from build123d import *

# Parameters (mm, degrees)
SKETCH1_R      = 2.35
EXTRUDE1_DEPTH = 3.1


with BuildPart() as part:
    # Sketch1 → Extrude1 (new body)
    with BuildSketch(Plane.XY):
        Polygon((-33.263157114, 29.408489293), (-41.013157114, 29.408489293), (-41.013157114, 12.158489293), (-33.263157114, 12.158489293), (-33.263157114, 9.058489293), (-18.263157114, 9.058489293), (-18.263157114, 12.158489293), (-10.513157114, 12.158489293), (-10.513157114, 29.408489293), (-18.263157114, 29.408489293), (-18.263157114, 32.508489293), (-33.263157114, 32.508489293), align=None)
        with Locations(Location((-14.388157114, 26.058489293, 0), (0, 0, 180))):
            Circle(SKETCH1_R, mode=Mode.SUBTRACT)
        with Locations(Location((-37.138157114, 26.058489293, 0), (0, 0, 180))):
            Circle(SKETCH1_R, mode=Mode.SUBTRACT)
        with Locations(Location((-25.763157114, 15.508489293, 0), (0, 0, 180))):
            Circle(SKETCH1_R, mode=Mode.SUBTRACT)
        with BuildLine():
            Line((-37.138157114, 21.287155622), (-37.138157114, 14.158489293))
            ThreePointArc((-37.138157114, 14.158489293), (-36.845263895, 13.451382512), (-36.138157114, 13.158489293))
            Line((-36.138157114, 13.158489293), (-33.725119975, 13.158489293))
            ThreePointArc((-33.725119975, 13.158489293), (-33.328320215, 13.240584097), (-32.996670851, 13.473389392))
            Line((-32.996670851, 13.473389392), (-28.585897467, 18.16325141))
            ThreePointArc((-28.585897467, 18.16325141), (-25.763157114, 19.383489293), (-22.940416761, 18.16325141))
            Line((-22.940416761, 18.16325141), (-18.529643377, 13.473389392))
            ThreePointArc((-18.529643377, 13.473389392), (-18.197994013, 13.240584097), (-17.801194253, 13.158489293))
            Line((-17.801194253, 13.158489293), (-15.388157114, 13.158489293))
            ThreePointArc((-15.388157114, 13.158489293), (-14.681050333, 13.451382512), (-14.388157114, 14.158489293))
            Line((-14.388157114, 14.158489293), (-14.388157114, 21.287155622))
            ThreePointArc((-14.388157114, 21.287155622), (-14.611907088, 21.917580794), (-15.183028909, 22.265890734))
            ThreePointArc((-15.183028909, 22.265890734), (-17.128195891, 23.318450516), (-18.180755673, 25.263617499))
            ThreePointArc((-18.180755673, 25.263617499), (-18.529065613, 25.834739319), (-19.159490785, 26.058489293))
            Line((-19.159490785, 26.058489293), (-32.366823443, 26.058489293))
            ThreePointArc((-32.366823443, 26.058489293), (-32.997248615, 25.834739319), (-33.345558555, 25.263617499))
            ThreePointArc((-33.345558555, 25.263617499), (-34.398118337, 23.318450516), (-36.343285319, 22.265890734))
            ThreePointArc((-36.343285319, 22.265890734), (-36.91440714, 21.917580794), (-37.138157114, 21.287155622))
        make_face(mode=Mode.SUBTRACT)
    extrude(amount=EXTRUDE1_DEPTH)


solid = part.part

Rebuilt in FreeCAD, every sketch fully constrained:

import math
import FreeCAD as App
import Part
import Sketcher


def add_polygon(sketch, points):
    """Adds a closed chain of lines whose ends are joined by coincident constraints."""
    first, n = sketch.GeometryCount, len(points)
    for a, b in zip(points, points[1:] + points[:1]):
        sketch.addGeometry(Part.LineSegment(App.Vector(*a, 0), App.Vector(*b, 0)), False)
    for i in range(n):
        sketch.addConstraint(Sketcher.Constraint("Coincident", first + i, 2, first + (i + 1) % n, 1))

doc = App.newDocument("Part")
body = doc.addObject("PartDesign::Body", "Body")

# Sketch on XY plane
sketch1 = body.newObject("Sketcher::SketchObject", "Sketch")
sketch1.AttachmentSupport = (doc.getObject("XY_Plane"), [""])
sketch1.MapMode = "FlatFace"
add_polygon(sketch1, [(-33.263157, 29.408489), (-41.013157, 29.408489), (-41.013157, 12.158489), (-33.263157, 12.158489), (-33.263157, 9.058489), (-18.263157, 9.058489), (-18.263157, 12.158489), (-10.513157, 12.158489), (-10.513157, 29.408489), (-18.263157, 29.408489), (-18.263157, 32.508489), (-33.263157, 32.508489)])  # lines 0-11
sketch1.addGeometry(Part.Circle(App.Vector(-25.763157, 15.508489, 0), App.Vector(0, 0, 1), 2.35), False)  # 12
sketch1.addGeometry(Part.LineSegment(App.Vector(-37.138157, 14.158489, 0), App.Vector(-37.138157, 21.287156, 0)), False)  # 13
sketch1.addGeometry(Part.ArcOfCircle(Part.Circle(App.Vector(-36.138157, 21.287156, 0), App.Vector(0, 0, 1), 1), math.radians(101.837004), math.radians(180)), False)  # 14
sketch1.addGeometry(Part.ArcOfCircle(Part.Circle(App.Vector(-37.138157, 26.058489, 0), App.Vector(0, 0, 1), 3.875), math.radians(-78.162996), math.radians(-11.837004)), False)  # 15
sketch1.addGeometry(Part.ArcOfCircle(Part.Circle(App.Vector(-32.366823, 25.058489, 0), App.Vector(0, 0, 1), 1), math.radians(90), math.radians(168.162996)), False)  # 16
sketch1.addGeometry(Part.LineSegment(App.Vector(-32.366823, 26.058489, 0), App.Vector(-19.159491, 26.058489, 0)), False)  # 17
sketch1.addGeometry(Part.ArcOfCircle(Part.Circle(App.Vector(-19.159491, 25.058489, 0), App.Vector(0, 0, 1), 1), math.radians(11.837004), math.radians(90)), False)  # 18
sketch1.addGeometry(Part.ArcOfCircle(Part.Circle(App.Vector(-14.388157, 26.058489, 0), App.Vector(0, 0, 1), 3.875), math.radians(-168.162996), math.radians(-101.837004)), False)  # 19
sketch1.addGeometry(Part.ArcOfCircle(Part.Circle(App.Vector(-15.388157, 21.287156, 0), App.Vector(0, 0, 1), 1), math.radians(0), math.radians(78.162996)), False)  # 20
sketch1.addGeometry(Part.LineSegment(App.Vector(-14.388157, 21.287156, 0), App.Vector(-14.388157, 14.158489, 0)), False)  # 21
sketch1.addGeometry(Part.ArcOfCircle(Part.Circle(App.Vector(-15.388157, 14.158489, 0), App.Vector(0, 0, 1), 1), math.radians(-90), math.radians(0)), False)  # 22
sketch1.addGeometry(Part.LineSegment(App.Vector(-15.388157, 13.158489, 0), App.Vector(-17.801194, 13.158489, 0)), False)  # 23
sketch1.addGeometry(Part.ArcOfCircle(Part.Circle(App.Vector(-17.801194, 14.158489, 0), App.Vector(0, 0, 1), 1), math.radians(-136.756535), math.radians(-90)), False)  # 24
sketch1.addGeometry(Part.LineSegment(App.Vector(-18.529643, 13.473389, 0), App.Vector(-22.940417, 18.163251, 0)), False)  # 25
sketch1.addGeometry(Part.ArcOfCircle(Part.Circle(App.Vector(-25.763157, 15.508489, 0), App.Vector(0, 0, 1), 3.875), math.radians(43.243464), math.radians(136.756536)), False)  # 26
sketch1.addGeometry(Part.LineSegment(App.Vector(-28.585897, 18.163251, 0), App.Vector(-32.996671, 13.473389, 0)), False)  # 27
sketch1.addGeometry(Part.ArcOfCircle(Part.Circle(App.Vector(-33.72512, 14.158489, 0), App.Vector(0, 0, 1), 1), math.radians(-90), math.radians(-43.243465)), False)  # 28
sketch1.addGeometry(Part.LineSegment(App.Vector(-33.72512, 13.158489, 0), App.Vector(-36.138157, 13.158489, 0)), False)  # 29
sketch1.addGeometry(Part.ArcOfCircle(Part.Circle(App.Vector(-36.138157, 14.158489, 0), App.Vector(0, 0, 1), 1), math.radians(-180), math.radians(-90)), False)  # 30
sketch1.addGeometry(Part.Circle(App.Vector(-37.138157, 26.058489, 0), App.Vector(0, 0, 1), 2.35), False)  # 31
sketch1.addGeometry(Part.Circle(App.Vector(-14.388157, 26.058489, 0), App.Vector(0, 0, 1), 2.35), False)  # 32
sketch1.addConstraint([
    Sketcher.Constraint("Tangent", 13, 2, 14, 2),
    Sketcher.Constraint("Tangent", 14, 1, 15, 1),
    Sketcher.Constraint("Tangent", 15, 2, 16, 2),
    Sketcher.Constraint("Tangent", 16, 1, 17, 1),
    Sketcher.Constraint("Tangent", 17, 2, 18, 2),
    Sketcher.Constraint("Tangent", 18, 1, 19, 1),
    Sketcher.Constraint("Tangent", 19, 2, 20, 2),
    Sketcher.Constraint("Tangent", 20, 1, 21, 1),
    Sketcher.Constraint("Tangent", 21, 2, 22, 2),
    Sketcher.Constraint("Tangent", 22, 1, 23, 1),
    Sketcher.Constraint("Tangent", 23, 2, 24, 2),
    Sketcher.Constraint("Tangent", 24, 1, 25, 1),
    Sketcher.Constraint("Tangent", 25, 2, 26, 1),
    Sketcher.Constraint("Tangent", 26, 2, 27, 1),
    Sketcher.Constraint("Tangent", 27, 2, 28, 2),
    Sketcher.Constraint("Tangent", 28, 1, 29, 1),
    Sketcher.Constraint("Tangent", 29, 2, 30, 2),
    Sketcher.Constraint("Tangent", 30, 1, 13, 1),
    Sketcher.Constraint("Horizontal", 0),
    Sketcher.Constraint("Vertical", 1),
    Sketcher.Constraint("Horizontal", 2),
    Sketcher.Constraint("Vertical", 3),
    Sketcher.Constraint("Horizontal", 4),
    Sketcher.Constraint("Vertical", 5),
    Sketcher.Constraint("Horizontal", 6),
    Sketcher.Constraint("Vertical", 7),
    Sketcher.Constraint("Horizontal", 8),
    Sketcher.Constraint("Vertical", 9),
    Sketcher.Constraint("Horizontal", 10),
    Sketcher.Constraint("Vertical", 11),
    Sketcher.Constraint("Vertical", 13),
    Sketcher.Constraint("Horizontal", 17),
    Sketcher.Constraint("Vertical", 21),
    Sketcher.Constraint("Horizontal", 23),
    Sketcher.Constraint("Horizontal", 29),
    Sketcher.Constraint("Coincident", 26, 3, 12, 3),
    Sketcher.Constraint("Coincident", 31, 3, 15, 3),
    Sketcher.Constraint("Coincident", 32, 3, 19, 3),
    Sketcher.Constraint("Equal", 14, 16),
    Sketcher.Constraint("Equal", 16, 18),
    Sketcher.Constraint("Equal", 15, 19),
    Sketcher.Constraint("Equal", 18, 20),
    Sketcher.Constraint("Equal", 20, 22),
    Sketcher.Constraint("Equal", 22, 24),
    Sketcher.Constraint("Equal", 19, 26),
    Sketcher.Constraint("Equal", 24, 28),
    Sketcher.Constraint("Equal", 28, 30),
    Sketcher.Constraint("Equal", 12, 31),
    Sketcher.Constraint("Equal", 31, 32),
    Sketcher.Constraint("Horizontal", 15, 3, 19, 3),
    Sketcher.Constraint("Horizontal", 14, 3, 20, 3),
    Sketcher.Constraint("Horizontal", 24, 3, 28, 3),
    Sketcher.Constraint("Horizontal", 2, 2, 5, 2),
    Sketcher.Constraint("Horizontal", 0, 2, 7, 2),
    Sketcher.Constraint("Horizontal", 32, 3, 16, 1),
    Sketcher.Constraint("Horizontal", 25, 2, 26, 2),
    Sketcher.Constraint("Vertical", 5, 2, 8, 2),
    Sketcher.Constraint("Vertical", 3, 2, 10, 2),
    Sketcher.Constraint("Vertical", 31, 3, 13, 2),
    Sketcher.Constraint("Equal", 2, 6),
    Sketcher.Constraint("Equal", 23, 29),
    Sketcher.Constraint("Equal", 5, 9),
    Sketcher.Constraint("Radius", 14, 1.0),
    Sketcher.Constraint("Diameter", 12, 4.7),
    Sketcher.Constraint("DistanceX", 4, 1, 4, 2, 15.0),
    Sketcher.Constraint("DistanceY", 3, 2, 3, 1, 3.1),
    Sketcher.Constraint("Radius", 15, 3.875),
    Sketcher.Constraint("DistanceY", 1, 2, 30, 3, 2.0),
    Sketcher.Constraint("DistanceX", 0, 2, 0, 1, 7.75),
    Sketcher.Constraint("DistanceY", 1, 2, 1, 1, 17.25),
    Sketcher.Constraint("DistanceY", 22, 3, 18, 3, 10.9),
    Sketcher.Constraint("DistanceX", 2, 2, 12, 3, 7.5),
    Sketcher.Constraint("DistanceY", 12, 3, 15, 3, 10.55),
    Sketcher.Constraint("DistanceX", 14, 3, 19, 3, 21.75),
    Sketcher.Constraint("DistanceY", 23, 2, 24, 1, 0.3149),
    Sketcher.Constraint("DistanceY", -1, 1, 12, 3, 15.508489),
    Sketcher.Constraint("DistanceX", 18, 3, -1, 1, 19.159491),
])
pad1 = body.newObject("PartDesign::Pad", "Pad")
pad1.Profile = sketch1
pad1.Length = 3.1

doc.recompute()
